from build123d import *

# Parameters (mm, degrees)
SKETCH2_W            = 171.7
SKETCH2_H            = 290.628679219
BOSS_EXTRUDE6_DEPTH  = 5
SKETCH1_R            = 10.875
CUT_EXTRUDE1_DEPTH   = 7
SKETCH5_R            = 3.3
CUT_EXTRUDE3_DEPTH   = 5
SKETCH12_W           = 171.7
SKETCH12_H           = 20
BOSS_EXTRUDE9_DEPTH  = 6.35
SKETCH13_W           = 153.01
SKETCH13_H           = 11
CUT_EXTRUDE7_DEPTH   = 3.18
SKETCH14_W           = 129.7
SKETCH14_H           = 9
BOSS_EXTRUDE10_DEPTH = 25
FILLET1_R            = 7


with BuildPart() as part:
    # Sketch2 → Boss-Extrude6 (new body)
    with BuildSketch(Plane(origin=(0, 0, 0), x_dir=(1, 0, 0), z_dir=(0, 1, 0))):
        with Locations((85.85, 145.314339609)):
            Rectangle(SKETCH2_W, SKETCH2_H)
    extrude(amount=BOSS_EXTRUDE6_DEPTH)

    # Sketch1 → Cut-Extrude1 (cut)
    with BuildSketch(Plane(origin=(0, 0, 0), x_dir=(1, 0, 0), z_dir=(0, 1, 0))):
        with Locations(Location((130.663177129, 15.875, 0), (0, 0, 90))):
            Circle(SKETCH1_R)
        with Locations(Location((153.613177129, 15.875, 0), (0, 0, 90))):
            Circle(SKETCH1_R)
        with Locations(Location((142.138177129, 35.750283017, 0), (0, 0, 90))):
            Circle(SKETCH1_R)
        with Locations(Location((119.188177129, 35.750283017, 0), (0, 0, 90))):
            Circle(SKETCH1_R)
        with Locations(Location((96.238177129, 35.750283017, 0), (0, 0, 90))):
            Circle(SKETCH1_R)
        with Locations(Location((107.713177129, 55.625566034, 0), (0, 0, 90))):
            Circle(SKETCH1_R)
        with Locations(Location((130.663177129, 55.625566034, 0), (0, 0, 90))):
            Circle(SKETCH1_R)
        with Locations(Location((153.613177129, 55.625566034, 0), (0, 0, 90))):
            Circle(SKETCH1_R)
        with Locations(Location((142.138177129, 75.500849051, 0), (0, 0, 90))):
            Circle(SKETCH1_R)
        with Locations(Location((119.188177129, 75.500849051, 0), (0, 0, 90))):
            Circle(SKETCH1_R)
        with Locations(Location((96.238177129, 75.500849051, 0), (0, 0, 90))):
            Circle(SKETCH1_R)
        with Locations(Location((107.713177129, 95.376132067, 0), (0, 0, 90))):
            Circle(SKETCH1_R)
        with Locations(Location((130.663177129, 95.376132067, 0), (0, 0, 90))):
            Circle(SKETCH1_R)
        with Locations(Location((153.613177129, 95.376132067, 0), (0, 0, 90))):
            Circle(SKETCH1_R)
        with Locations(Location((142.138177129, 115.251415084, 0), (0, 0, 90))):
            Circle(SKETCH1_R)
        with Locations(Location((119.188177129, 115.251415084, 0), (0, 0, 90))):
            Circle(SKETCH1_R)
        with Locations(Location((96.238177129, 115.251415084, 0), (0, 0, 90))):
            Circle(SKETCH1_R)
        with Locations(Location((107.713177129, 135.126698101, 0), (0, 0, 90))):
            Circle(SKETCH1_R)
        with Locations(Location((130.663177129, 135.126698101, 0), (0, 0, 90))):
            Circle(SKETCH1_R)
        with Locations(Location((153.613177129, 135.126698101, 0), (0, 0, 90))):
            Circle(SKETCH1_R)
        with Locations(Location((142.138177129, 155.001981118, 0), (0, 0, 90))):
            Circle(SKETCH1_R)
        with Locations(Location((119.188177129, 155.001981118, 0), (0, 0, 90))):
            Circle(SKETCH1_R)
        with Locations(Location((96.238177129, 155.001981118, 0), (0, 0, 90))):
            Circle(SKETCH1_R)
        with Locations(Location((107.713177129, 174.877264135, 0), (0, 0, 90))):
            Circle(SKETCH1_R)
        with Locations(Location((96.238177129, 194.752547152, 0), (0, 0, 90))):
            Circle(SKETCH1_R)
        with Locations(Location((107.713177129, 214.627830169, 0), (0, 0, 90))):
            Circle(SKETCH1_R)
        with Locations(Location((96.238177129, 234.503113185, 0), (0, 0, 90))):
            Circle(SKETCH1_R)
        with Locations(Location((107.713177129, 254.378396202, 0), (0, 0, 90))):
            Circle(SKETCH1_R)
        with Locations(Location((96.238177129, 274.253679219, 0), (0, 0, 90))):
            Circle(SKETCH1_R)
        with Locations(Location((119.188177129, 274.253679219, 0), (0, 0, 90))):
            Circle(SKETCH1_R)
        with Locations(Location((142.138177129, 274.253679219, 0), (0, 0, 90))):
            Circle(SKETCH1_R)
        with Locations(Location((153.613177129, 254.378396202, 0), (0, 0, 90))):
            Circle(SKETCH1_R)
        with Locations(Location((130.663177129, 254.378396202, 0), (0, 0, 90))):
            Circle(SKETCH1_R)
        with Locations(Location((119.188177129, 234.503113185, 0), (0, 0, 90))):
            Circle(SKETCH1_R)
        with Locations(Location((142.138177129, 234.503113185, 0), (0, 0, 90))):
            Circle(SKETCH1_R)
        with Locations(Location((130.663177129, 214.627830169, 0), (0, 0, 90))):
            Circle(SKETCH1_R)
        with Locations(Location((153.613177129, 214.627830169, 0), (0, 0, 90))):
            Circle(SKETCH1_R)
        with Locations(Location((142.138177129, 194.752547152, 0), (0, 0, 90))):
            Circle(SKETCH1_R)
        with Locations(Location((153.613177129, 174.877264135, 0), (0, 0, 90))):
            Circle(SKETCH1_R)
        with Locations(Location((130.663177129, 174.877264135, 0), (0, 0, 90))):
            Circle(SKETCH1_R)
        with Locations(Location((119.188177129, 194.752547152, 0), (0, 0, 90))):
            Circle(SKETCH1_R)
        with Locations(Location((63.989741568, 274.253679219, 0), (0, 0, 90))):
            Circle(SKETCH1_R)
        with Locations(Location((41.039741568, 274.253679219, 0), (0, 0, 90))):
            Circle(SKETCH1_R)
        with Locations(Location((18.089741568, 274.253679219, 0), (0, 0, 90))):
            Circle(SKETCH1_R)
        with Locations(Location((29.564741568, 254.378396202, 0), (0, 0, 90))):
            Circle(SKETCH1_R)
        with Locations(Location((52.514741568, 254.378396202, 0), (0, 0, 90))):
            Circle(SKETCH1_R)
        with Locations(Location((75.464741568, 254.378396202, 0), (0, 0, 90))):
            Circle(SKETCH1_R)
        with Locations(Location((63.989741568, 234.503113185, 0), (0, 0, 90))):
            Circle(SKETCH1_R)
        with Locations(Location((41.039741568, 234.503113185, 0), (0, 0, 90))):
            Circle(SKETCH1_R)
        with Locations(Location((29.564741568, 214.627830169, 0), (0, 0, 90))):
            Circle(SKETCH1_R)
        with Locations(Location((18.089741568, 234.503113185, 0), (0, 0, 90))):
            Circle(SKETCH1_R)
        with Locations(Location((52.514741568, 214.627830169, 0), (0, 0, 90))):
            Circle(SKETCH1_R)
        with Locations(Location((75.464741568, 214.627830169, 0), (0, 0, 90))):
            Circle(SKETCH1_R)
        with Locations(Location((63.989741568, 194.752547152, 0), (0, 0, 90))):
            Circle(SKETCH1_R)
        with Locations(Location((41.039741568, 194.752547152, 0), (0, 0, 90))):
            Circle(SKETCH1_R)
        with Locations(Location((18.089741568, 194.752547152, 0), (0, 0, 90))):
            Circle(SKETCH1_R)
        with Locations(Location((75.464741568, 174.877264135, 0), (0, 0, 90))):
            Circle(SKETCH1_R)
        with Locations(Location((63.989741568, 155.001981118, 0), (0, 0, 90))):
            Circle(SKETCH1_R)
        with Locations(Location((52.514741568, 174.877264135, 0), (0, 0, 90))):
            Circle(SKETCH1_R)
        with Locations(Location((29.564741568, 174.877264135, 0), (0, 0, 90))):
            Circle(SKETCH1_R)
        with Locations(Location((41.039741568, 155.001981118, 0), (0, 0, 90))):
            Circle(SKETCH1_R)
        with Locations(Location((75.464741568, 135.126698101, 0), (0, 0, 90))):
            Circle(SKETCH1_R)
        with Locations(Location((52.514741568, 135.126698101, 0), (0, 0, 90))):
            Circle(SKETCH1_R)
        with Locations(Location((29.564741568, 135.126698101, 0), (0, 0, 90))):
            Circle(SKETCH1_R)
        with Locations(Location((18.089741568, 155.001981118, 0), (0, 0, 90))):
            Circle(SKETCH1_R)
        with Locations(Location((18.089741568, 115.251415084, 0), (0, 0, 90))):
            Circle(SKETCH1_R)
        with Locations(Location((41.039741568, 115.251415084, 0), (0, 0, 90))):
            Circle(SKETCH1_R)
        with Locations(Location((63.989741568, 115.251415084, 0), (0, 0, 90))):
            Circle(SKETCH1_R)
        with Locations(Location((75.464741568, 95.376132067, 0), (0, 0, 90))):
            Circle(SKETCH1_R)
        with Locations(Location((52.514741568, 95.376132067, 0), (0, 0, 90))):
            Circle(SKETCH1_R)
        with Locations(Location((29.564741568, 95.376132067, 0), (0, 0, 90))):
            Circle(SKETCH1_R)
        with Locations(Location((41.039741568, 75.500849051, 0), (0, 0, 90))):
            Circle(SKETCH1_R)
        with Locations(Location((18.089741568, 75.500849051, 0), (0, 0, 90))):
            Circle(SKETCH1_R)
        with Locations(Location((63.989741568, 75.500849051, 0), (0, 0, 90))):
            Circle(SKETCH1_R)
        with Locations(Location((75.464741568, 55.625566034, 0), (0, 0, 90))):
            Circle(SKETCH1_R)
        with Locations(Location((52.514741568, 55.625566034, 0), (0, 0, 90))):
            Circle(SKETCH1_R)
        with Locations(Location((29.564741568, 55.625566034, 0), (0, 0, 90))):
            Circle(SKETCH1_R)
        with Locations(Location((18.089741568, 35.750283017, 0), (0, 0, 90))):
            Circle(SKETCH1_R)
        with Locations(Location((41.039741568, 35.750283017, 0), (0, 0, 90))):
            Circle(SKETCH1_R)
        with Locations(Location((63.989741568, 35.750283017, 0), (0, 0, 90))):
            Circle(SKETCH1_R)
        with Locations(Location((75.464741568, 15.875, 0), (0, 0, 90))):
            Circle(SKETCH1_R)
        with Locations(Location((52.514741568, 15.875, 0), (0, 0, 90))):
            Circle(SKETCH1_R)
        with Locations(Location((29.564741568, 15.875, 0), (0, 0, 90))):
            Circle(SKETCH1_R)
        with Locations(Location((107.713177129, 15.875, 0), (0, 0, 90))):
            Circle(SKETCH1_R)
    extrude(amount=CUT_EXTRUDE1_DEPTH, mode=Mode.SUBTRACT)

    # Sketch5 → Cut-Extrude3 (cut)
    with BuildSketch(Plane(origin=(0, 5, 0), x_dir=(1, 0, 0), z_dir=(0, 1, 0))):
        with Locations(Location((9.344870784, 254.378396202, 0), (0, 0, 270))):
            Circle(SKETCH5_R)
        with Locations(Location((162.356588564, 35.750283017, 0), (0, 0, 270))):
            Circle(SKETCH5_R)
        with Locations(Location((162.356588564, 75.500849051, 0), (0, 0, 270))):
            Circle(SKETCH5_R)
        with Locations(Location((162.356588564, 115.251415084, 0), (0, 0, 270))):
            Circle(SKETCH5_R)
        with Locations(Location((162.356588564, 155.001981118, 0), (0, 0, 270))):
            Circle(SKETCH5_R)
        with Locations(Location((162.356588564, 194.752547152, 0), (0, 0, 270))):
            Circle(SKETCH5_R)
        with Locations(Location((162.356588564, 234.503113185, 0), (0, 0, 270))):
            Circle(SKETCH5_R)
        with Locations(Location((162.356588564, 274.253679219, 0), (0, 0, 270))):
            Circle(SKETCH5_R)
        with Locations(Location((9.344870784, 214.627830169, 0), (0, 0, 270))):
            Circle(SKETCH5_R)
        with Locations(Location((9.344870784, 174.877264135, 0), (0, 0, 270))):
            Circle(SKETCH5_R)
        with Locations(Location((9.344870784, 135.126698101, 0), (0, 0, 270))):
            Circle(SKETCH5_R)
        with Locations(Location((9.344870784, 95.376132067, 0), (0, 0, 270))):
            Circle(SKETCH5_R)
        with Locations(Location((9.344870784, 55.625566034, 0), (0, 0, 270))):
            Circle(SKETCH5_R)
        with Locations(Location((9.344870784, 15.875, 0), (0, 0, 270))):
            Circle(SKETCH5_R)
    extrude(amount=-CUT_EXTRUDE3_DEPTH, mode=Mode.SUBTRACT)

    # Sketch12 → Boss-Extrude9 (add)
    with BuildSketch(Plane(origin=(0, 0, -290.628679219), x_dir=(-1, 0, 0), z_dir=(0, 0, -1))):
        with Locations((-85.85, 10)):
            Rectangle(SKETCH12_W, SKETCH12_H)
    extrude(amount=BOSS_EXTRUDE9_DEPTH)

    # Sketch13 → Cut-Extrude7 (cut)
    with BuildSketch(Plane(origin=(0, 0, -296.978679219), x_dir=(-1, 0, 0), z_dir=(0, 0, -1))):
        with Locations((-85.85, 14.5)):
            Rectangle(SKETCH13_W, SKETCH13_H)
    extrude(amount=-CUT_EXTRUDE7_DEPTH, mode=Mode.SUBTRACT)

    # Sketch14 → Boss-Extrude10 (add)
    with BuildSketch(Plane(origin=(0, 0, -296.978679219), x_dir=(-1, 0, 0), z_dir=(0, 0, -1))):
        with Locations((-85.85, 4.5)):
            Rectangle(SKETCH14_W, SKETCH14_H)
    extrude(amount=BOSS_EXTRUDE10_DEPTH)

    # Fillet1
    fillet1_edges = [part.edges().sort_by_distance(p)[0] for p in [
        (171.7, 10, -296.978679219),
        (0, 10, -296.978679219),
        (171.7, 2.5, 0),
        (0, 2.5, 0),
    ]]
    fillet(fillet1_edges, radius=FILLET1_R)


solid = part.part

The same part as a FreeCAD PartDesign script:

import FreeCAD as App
import Part
import Sketcher


def edges_at(feature, points):
    """Names of the edges that pass closest to the given points."""
    edges = feature.Shape.Edges
    near = lambda p: min(range(len(edges)), key=lambda i: edges[i].distToShape(Part.Vertex(*p))[0])
    return sorted({f"Edge{near(p) + 1}" for p in points})

doc = App.newDocument("Part")
body = doc.addObject("PartDesign::Body", "Body")

# Sketch on XZ plane
sketch1 = body.newObject("Sketcher::SketchObject", "Sketch")
sketch1.AttachmentSupport = (doc.getObject("XZ_Plane"), [""])
sketch1.MapMode = "FlatFace"
sketch1.addGeometry([
    Part.LineSegment(App.Vector(0, -290.628679, 0), App.Vector(0, 0, 0)),
    Part.LineSegment(App.Vector(0, 0, 0), App.Vector(171.7, 0, 0)),
    Part.LineSegment(App.Vector(171.7, 0, 0), App.Vector(171.7, -290.628679, 0)),
    Part.LineSegment(App.Vector(171.7, -290.628679, 0), App.Vector(0, -290.628679, 0)),
], False)
sketch1.addConstraint([
    Sketcher.Constraint("Coincident", 0, 2, 1, 1),
    Sketcher.Constraint("Coincident", 1, 2, 2, 1),
    Sketcher.Constraint("Coincident", 2, 2, 3, 1),
    Sketcher.Constraint("Coincident", 3, 2, 0, 1),
    Sketcher.Constraint("Vertical", 0),
    Sketcher.Constraint("Horizontal", 1),
    Sketcher.Constraint("Vertical", 2),
    Sketcher.Constraint("Horizontal", 3),
    Sketcher.Constraint("Coincident", 0, 2, -1, 1),
    Sketcher.Constraint("DistanceX", 1, 1, 1, 2, 171.7),
    Sketcher.Constraint("DistanceY", 0, 1, 0, 2, 290.628679),
])
pad1 = body.newObject("PartDesign::Pad", "Pad")
pad1.Profile = sketch1
pad1.Length = 5
pad1.Reversed = True

# Sketch on XZ plane
sketch2 = body.newObject("Sketcher::SketchObject", "Sketch001")
sketch2.AttachmentSupport = (doc.getObject("XZ_Plane"), [""])
sketch2.MapMode = "FlatFace"
sketch2.addGeometry([
    Part.Circle(App.Vector(130.663177, -15.875, 0), App.Vector(0, 0, 1), 10.875),  # 0
    Part.Circle(App.Vector(153.613177, -15.875, 0), App.Vector(0, 0, 1), 10.875),  # 1
    Part.Circle(App.Vector(142.138177, -35.750283, 0), App.Vector(0, 0, 1), 10.875),  # 2
    Part.Circle(App.Vector(119.188177, -35.750283, 0), App.Vector(0, 0, 1), 10.875),  # 3
    Part.Circle(App.Vector(96.238177, -35.750283, 0), App.Vector(0, 0, 1), 10.875),  # 4
    Part.Circle(App.Vector(107.713177, -55.625566, 0), App.Vector(0, 0, 1), 10.875),  # 5
    Part.Circle(App.Vector(130.663177, -55.625566, 0), App.Vector(0, 0, 1), 10.875),  # 6
    Part.Circle(App.Vector(153.613177, -55.625566, 0), App.Vector(0, 0, 1), 10.875),  # 7
    Part.Circle(App.Vector(142.138177, -75.500849, 0), App.Vector(0, 0, 1), 10.875),  # 8
    Part.Circle(App.Vector(119.188177, -75.500849, 0), App.Vector(0, 0, 1), 10.875),  # 9
    Part.Circle(App.Vector(96.238177, -75.500849, 0), App.Vector(0, 0, 1), 10.875),  # 10
    Part.Circle(App.Vector(107.713177, -95.376132, 0), App.Vector(0, 0, 1), 10.875),  # 11
    Part.Circle(App.Vector(130.663177, -95.376132, 0), App.Vector(0, 0, 1), 10.875),  # 12
    Part.Circle(App.Vector(153.613177, -95.376132, 0), App.Vector(0, 0, 1), 10.875),  # 13
    Part.Circle(App.Vector(142.138177, -115.251415, 0), App.Vector(0, 0, 1), 10.875),  # 14
    Part.Circle(App.Vector(119.188177, -115.251415, 0), App.Vector(0, 0, 1), 10.875),  # 15
    Part.Circle(App.Vector(96.238177, -115.251415, 0), App.Vector(0, 0, 1), 10.875),  # 16
    Part.Circle(App.Vector(107.713177, -135.126698, 0), App.Vector(0, 0, 1), 10.875),  # 17
    Part.Circle(App.Vector(130.663177, -135.126698, 0), App.Vector(0, 0, 1), 10.875),  # 18
    Part.Circle(App.Vector(153.613177, -135.126698, 0), App.Vector(0, 0, 1), 10.875),  # 19
    Part.Circle(App.Vector(142.138177, -155.001981, 0), App.Vector(0, 0, 1), 10.875),  # 20
    Part.Circle(App.Vector(119.188177, -155.001981, 0), App.Vector(0, 0, 1), 10.875),  # 21
    Part.Circle(App.Vector(96.238177, -155.001981, 0), App.Vector(0, 0, 1), 10.875),  # 22
    Part.Circle(App.Vector(107.713177, -174.877264, 0), App.Vector(0, 0, 1), 10.875),  # 23
    Part.Circle(App.Vector(96.238177, -194.752547, 0), App.Vector(0, 0, 1), 10.875),  # 24
    Part.Circle(App.Vector(107.713177, -214.62783, 0), App.Vector(0, 0, 1), 10.875),  # 25
    Part.Circle(App.Vector(96.238177, -234.503113, 0), App.Vector(0, 0, 1), 10.875),  # 26
    Part.Circle(App.Vector(107.713177, -254.378396, 0), App.Vector(0, 0, 1), 10.875),  # 27
    Part.Circle(App.Vector(96.238177, -274.253679, 0), App.Vector(0, 0, 1), 10.875),  # 28
    Part.Circle(App.Vector(119.188177, -274.253679, 0), App.Vector(0, 0, 1), 10.875),  # 29
    Part.Circle(App.Vector(142.138177, -274.253679, 0), App.Vector(0, 0, 1), 10.875),  # 30
    Part.Circle(App.Vector(153.613177, -254.378396, 0), App.Vector(0, 0, 1), 10.875),  # 31
    Part.Circle(App.Vector(130.663177, -254.378396, 0), App.Vector(0, 0, 1), 10.875),  # 32
    Part.Circle(App.Vector(119.188177, -234.503113, 0), App.Vector(0, 0, 1), 10.875),  # 33
    Part.Circle(App.Vector(142.138177, -234.503113, 0), App.Vector(0, 0, 1), 10.875),  # 34
    Part.Circle(App.Vector(130.663177, -214.62783, 0), App.Vector(0, 0, 1), 10.875),  # 35
    Part.Circle(App.Vector(153.613177, -214.62783, 0), App.Vector(0, 0, 1), 10.875),  # 36
    Part.Circle(App.Vector(142.138177, -194.752547, 0), App.Vector(0, 0, 1), 10.875),  # 37
    Part.Circle(App.Vector(153.613177, -174.877264, 0), App.Vector(0, 0, 1), 10.875),  # 38
    Part.Circle(App.Vector(130.663177, -174.877264, 0), App.Vector(0, 0, 1), 10.875),  # 39
    Part.Circle(App.Vector(119.188177, -194.752547, 0), App.Vector(0, 0, 1), 10.875),  # 40
    Part.Circle(App.Vector(63.989742, -274.253679, 0), App.Vector(0, 0, 1), 10.875),  # 41
    Part.Circle(App.Vector(41.039742, -274.253679, 0), App.Vector(0, 0, 1), 10.875),  # 42
    Part.Circle(App.Vector(18.089742, -274.253679, 0), App.Vector(0, 0, 1), 10.875),  # 43
    Part.Circle(App.Vector(29.564742, -254.378396, 0), App.Vector(0, 0, 1), 10.875),  # 44
    Part.Circle(App.Vector(52.514742, -254.378396, 0), App.Vector(0, 0, 1), 10.875),  # 45
    Part.Circle(App.Vector(75.464742, -254.378396, 0), App.Vector(0, 0, 1), 10.875),  # 46
    Part.Circle(App.Vector(63.989742, -234.503113, 0), App.Vector(0, 0, 1), 10.875),  # 47
    Part.Circle(App.Vector(41.039742, -234.503113, 0), App.Vector(0, 0, 1), 10.875),  # 48
    Part.Circle(App.Vector(29.564742, -214.62783, 0), App.Vector(0, 0, 1), 10.875),  # 49
    Part.Circle(App.Vector(18.089742, -234.503113, 0), App.Vector(0, 0, 1), 10.875),  # 50
    Part.Circle(App.Vector(52.514742, -214.62783, 0), App.Vector(0, 0, 1), 10.875),  # 51
    Part.Circle(App.Vector(75.464742, -214.62783, 0), App.Vector(0, 0, 1), 10.875),  # 52
    Part.Circle(App.Vector(63.989742, -194.752547, 0), App.Vector(0, 0, 1), 10.875),  # 53
    Part.Circle(App.Vector(41.039742, -194.752547, 0), App.Vector(0, 0, 1), 10.875),  # 54
    Part.Circle(App.Vector(18.089742, -194.752547, 0), App.Vector(0, 0, 1), 10.875),  # 55
    Part.Circle(App.Vector(75.464742, -174.877264, 0), App.Vector(0, 0, 1), 10.875),  # 56
    Part.Circle(App.Vector(63.989742, -155.001981, 0), App.Vector(0, 0, 1), 10.875),  # 57
    Part.Circle(App.Vector(52.514742, -174.877264, 0), App.Vector(0, 0, 1), 10.875),  # 58
    Part.Circle(App.Vector(29.564742, -174.877264, 0), App.Vector(0, 0, 1), 10.875),  # 59
    Part.Circle(App.Vector(41.039742, -155.001981, 0), App.Vector(0, 0, 1), 10.875),  # 60
    Part.Circle(App.Vector(75.464742, -135.126698, 0), App.Vector(0, 0, 1), 10.875),  # 61
    Part.Circle(App.Vector(52.514742, -135.126698, 0), App.Vector(0, 0, 1), 10.875),  # 62
    Part.Circle(App.Vector(29.564742, -135.126698, 0), App.Vector(0, 0, 1), 10.875),  # 63
    Part.Circle(App.Vector(18.089742, -155.001981, 0), App.Vector(0, 0, 1), 10.875),  # 64
    Part.Circle(App.Vector(18.089742, -115.251415, 0), App.Vector(0, 0, 1), 10.875),  # 65
    Part.Circle(App.Vector(41.039742, -115.251415, 0), App.Vector(0, 0, 1), 10.875),  # 66
    Part.Circle(App.Vector(63.989742, -115.251415, 0), App.Vector(0, 0, 1), 10.875),  # 67
    Part.Circle(App.Vector(75.464742, -95.376132, 0), App.Vector(0, 0, 1), 10.875),  # 68
    Part.Circle(App.Vector(52.514742, -95.376132, 0), App.Vector(0, 0, 1), 10.875),  # 69
    Part.Circle(App.Vector(29.564742, -95.376132, 0), App.Vector(0, 0, 1), 10.875),  # 70
    Part.Circle(App.Vector(41.039742, -75.500849, 0), App.Vector(0, 0, 1), 10.875),  # 71
    Part.Circle(App.Vector(18.089742, -75.500849, 0), App.Vector(0, 0, 1), 10.875),  # 72
    Part.Circle(App.Vector(63.989742, -75.500849, 0), App.Vector(0, 0, 1), 10.875),  # 73
    Part.Circle(App.Vector(75.464742, -55.625566, 0), App.Vector(0, 0, 1), 10.875),  # 74
    Part.Circle(App.Vector(52.514742, -55.625566, 0), App.Vector(0, 0, 1), 10.875),  # 75
    Part.Circle(App.Vector(29.564742, -55.625566, 0), App.Vector(0, 0, 1), 10.875),  # 76
    Part.Circle(App.Vector(18.089742, -35.750283, 0), App.Vector(0, 0, 1), 10.875),  # 77
    Part.Circle(App.Vector(41.039742, -35.750283, 0), App.Vector(0, 0, 1), 10.875),  # 78
    Part.Circle(App.Vector(63.989742, -35.750283, 0), App.Vector(0, 0, 1), 10.875),  # 79
    Part.Circle(App.Vector(75.464742, -15.875, 0), App.Vector(0, 0, 1), 10.875),  # 80
    Part.Circle(App.Vector(52.514742, -15.875, 0), App.Vector(0, 0, 1), 10.875),  # 81
    Part.Circle(App.Vector(29.564742, -15.875, 0), App.Vector(0, 0, 1), 10.875),  # 82
    Part.Circle(App.Vector(107.713177, -15.875, 0), App.Vector(0, 0, 1), 10.875),  # 83
], False)
sketch2.addConstraint([
    Sketcher.Constraint("Equal", 0, 1),
    Sketcher.Constraint("Equal", 1, 2),
    Sketcher.Constraint("Equal", 2, 3),
    Sketcher.Constraint("Equal", 3, 4),
    Sketcher.Constraint("Equal", 4, 5),
    Sketcher.Constraint("Equal", 5, 6),
    Sketcher.Constraint("Equal", 6, 7),
    Sketcher.Constraint("Equal", 7, 8),
    Sketcher.Constraint("Equal", 8, 9),
    Sketcher.Constraint("Equal", 9, 10),
    Sketcher.Constraint("Equal", 10, 11),
    Sketcher.Constraint("Equal", 11, 12),
    Sketcher.Constraint("Equal", 12, 13),
    Sketcher.Constraint("Equal", 13, 14),
    Sketcher.Constraint("Equal", 14, 15),
    Sketcher.Constraint("Equal", 15, 16),
    Sketcher.Constraint("Equal", 16, 17),
    Sketcher.Constraint("Equal", 17, 18),
    Sketcher.Constraint("Equal", 18, 19),
    Sketcher.Constraint("Equal", 19, 20),
    Sketcher.Constraint("Equal", 20, 21),
    Sketcher.Constraint("Equal", 21, 22),
    Sketcher.Constraint("Equal", 22, 23),
    Sketcher.Constraint("Equal", 23, 24),
    Sketcher.Constraint("Equal", 24, 25),
    Sketcher.Constraint("Equal", 25, 26),
    Sketcher.Constraint("Equal", 26, 27),
    Sketcher.Constraint("Equal", 27, 28),
    Sketcher.Constraint("Equal", 28, 29),
    Sketcher.Constraint("Equal", 29, 30),
    Sketcher.Constraint("Equal", 30, 31),
    Sketcher.Constraint("Equal", 31, 32),
    Sketcher.Constraint("Equal", 32, 33),
    Sketcher.Constraint("Equal", 33, 34),
    Sketcher.Constraint("Equal", 34, 35),
    Sketcher.Constraint("Equal", 35, 36),
    Sketcher.Constraint("Equal", 36, 37),
    Sketcher.Constraint("Equal", 37, 38),
    Sketcher.Constraint("Equal", 38, 39),
    Sketcher.Constraint("Equal", 39, 40),
    Sketcher.Constraint("Equal", 40, 41),
    Sketcher.Constraint("Equal", 41, 42),
    Sketcher.Constraint("Equal", 42, 43),
    Sketcher.Constraint("Equal", 43, 44),
    Sketcher.Constraint("Equal", 44, 45),
    Sketcher.Constraint("Equal", 45, 46),
    Sketcher.Constraint("Equal", 46, 47),
    Sketcher.Constraint("Equal", 47, 48),
    Sketcher.Constraint("Equal", 48, 49),
    Sketcher.Constraint("Equal", 49, 50),
    Sketcher.Constraint("Equal", 50, 51),
    Sketcher.Constraint("Equal", 51, 52),
    Sketcher.Constraint("Equal", 52, 53),
    Sketcher.Constraint("Equal", 53, 54),
    Sketcher.Constraint("Equal", 54, 55),
    Sketcher.Constraint("Equal", 55, 56),
    Sketcher.Constraint("Equal", 56, 57),
    Sketcher.Constraint("Equal", 57, 58),
    Sketcher.Constraint("Equal", 58, 59),
    Sketcher.Constraint("Equal", 59, 60),
    Sketcher.Constraint("Equal", 60, 61),
    Sketcher.Constraint("Equal", 61, 62),
    Sketcher.Constraint("Equal", 62, 63),
    Sketcher.Constraint("Equal", 63, 64),
    Sketcher.Constraint("Equal", 64, 65),
    Sketcher.Constraint("Equal", 65, 66),
    Sketcher.Constraint("Equal", 66, 67),
    Sketcher.Constraint("Equal", 67, 68),
    Sketcher.Constraint("Equal", 68, 69),
    Sketcher.Constraint("Equal", 69, 70),
    Sketcher.Constraint("Equal", 70, 71),
    Sketcher.Constraint("Equal", 71, 72),
    Sketcher.Constraint("Equal", 72, 73),
    Sketcher.Constraint("Equal", 73, 74),
    Sketcher.Constraint("Equal", 74, 75),
    Sketcher.Constraint("Equal", 75, 76),
    Sketcher.Constraint("Equal", 76, 77),
    Sketcher.Constraint("Equal", 77, 78),
    Sketcher.Constraint("Equal", 78, 79),
    Sketcher.Constraint("Equal", 79, 80),
    Sketcher.Constraint("Equal", 80, 81),
    Sketcher.Constraint("Equal", 81, 82),
    Sketcher.Constraint("Equal", 82, 83),
    Sketcher.Constraint("Horizontal", 0, 3, 1, 3),
    Sketcher.Constraint("Horizontal", 2, 3, 3, 3),
    Sketcher.Constraint("Horizontal", 3, 3, 4, 3),
    Sketcher.Constraint("Horizontal", 5, 3, 6, 3),
    Sketcher.Constraint("Horizontal", 6, 3, 7, 3),
    Sketcher.Constraint("Horizontal", 8, 3, 9, 3),
    Sketcher.Constraint("Horizontal", 9, 3, 10, 3),
    Sketcher.Constraint("Horizontal", 11, 3, 12, 3),
    Sketcher.Constraint("Horizontal", 12, 3, 13, 3),
    Sketcher.Constraint("Horizontal", 14, 3, 15, 3),
    Sketcher.Constraint("Horizontal", 15, 3, 16, 3),
    Sketcher.Constraint("Horizontal", 17, 3, 18, 3),
    Sketcher.Constraint("Horizontal", 18, 3, 19, 3),
    Sketcher.Constraint("Horizontal", 20, 3, 21, 3),
    Sketcher.Constraint("Horizontal", 21, 3, 22, 3),
    Sketcher.Constraint("Horizontal", 28, 3, 29, 3),
    Sketcher.Constraint("Horizontal", 29, 3, 30, 3),
    Sketcher.Constraint("Horizontal", 27, 3, 31, 3),
    Sketcher.Constraint("Horizontal", 31, 3, 32, 3),
    Sketcher.Constraint("Horizontal", 26, 3, 33, 3),
    Sketcher.Constraint("Horizontal", 33, 3, 34, 3),
    Sketcher.Constraint("Horizontal", 25, 3, 35, 3),
    Sketcher.Constraint("Horizontal", 35, 3, 36, 3),
    Sketcher.Constraint("Horizontal", 24, 3, 37, 3),
    Sketcher.Constraint("Horizontal", 23, 3, 38, 3),
    Sketcher.Constraint("Horizontal", 38, 3, 39, 3),
    Sketcher.Constraint("Horizontal", 37, 3, 40, 3),
    Sketcher.Constraint("Horizontal", 30, 3, 41, 3),
    Sketcher.Constraint("Horizontal", 41, 3, 42, 3),
    Sketcher.Constraint("Horizontal", 42, 3, 43, 3),
    Sketcher.Constraint("Horizontal", 32, 3, 44, 3),
    Sketcher.Constraint("Horizontal", 44, 3, 45, 3),
    Sketcher.Constraint("Horizontal", 45, 3, 46, 3),
    Sketcher.Constraint("Horizontal", 34, 3, 47, 3),
    Sketcher.Constraint("Horizontal", 47, 3, 48, 3),
    Sketcher.Constraint("Horizontal", 36, 3, 49, 3),
    Sketcher.Constraint("Horizontal", 48, 3, 50, 3),
    Sketcher.Constraint("Horizontal", 49, 3, 51, 3),
    Sketcher.Constraint("Horizontal", 51, 3, 52, 3),
    Sketcher.Constraint("Horizontal", 40, 3, 53, 3),
    Sketcher.Constraint("Horizontal", 53, 3, 54, 3),
    Sketcher.Constraint("Horizontal", 54, 3, 55, 3),
    Sketcher.Constraint("Horizontal", 39, 3, 56, 3),
    Sketcher.Constraint("Horizontal", 22, 3, 57, 3),
    Sketcher.Constraint("Horizontal", 56, 3, 58, 3),
    Sketcher.Constraint("Horizontal", 58, 3, 59, 3),
    Sketcher.Constraint("Horizontal", 57, 3, 60, 3),
    Sketcher.Constraint("Horizontal", 19, 3, 61, 3),
    Sketcher.Constraint("Horizontal", 61, 3, 62, 3),
    Sketcher.Constraint("Horizontal", 62, 3, 63, 3),
    Sketcher.Constraint("Horizontal", 60, 3, 64, 3),
    Sketcher.Constraint("Horizontal", 16, 3, 65, 3),
    Sketcher.Constraint("Horizontal", 65, 3, 66, 3),
    Sketcher.Constraint("Horizontal", 66, 3, 67, 3),
    Sketcher.Constraint("Horizontal", 13, 3, 68, 3),
    Sketcher.Constraint("Horizontal", 68, 3, 69, 3),
    Sketcher.Constraint("Horizontal", 69, 3, 70, 3),
    Sketcher.Constraint("Horizontal", 10, 3, 71, 3),
    Sketcher.Constraint("Horizontal", 71, 3, 72, 3),
    Sketcher.Constraint("Horizontal", 72, 3, 73, 3),
    Sketcher.Constraint("Horizontal", 7, 3, 74, 3),
    Sketcher.Constraint("Horizontal", 74, 3, 75, 3),
    Sketcher.Constraint("Horizontal", 75, 3, 76, 3),
    Sketcher.Constraint("Horizontal", 4, 3, 77, 3),
    Sketcher.Constraint("Horizontal", 77, 3, 78, 3),
    Sketcher.Constraint("Horizontal", 78, 3, 79, 3),
    Sketcher.Constraint("Horizontal", 1, 3, 80, 3),
    Sketcher.Constraint("Horizontal", 80, 3, 81, 3),
    Sketcher.Constraint("Horizontal", 81, 3, 82, 3),
    Sketcher.Constraint("Horizontal", 82, 3, 83, 3),
    Sketcher.Constraint("Vertical", 0, 3, 6, 3),
    Sketcher.Constraint("Vertical", 1, 3, 7, 3),
    Sketcher.Constraint("Vertical", 2, 3, 8, 3),
    Sketcher.Constraint("Vertical", 3, 3, 9, 3),
    Sketcher.Constraint("Vertical", 4, 3, 10, 3),
    Sketcher.Constraint("Vertical", 5, 3, 11, 3),
    Sketcher.Constraint("Vertical", 6, 3, 12, 3),
    Sketcher.Constraint("Vertical", 7, 3, 13, 3),
    Sketcher.Constraint("Vertical", 8, 3, 14, 3),
    Sketcher.Constraint("Vertical", 9, 3, 15, 3),
    Sketcher.Constraint("Vertical", 10, 3, 16, 3),
    Sketcher.Constraint("Vertical", 11, 3, 17, 3),
    Sketcher.Constraint("Vertical", 12, 3, 18, 3),
    Sketcher.Constraint("Vertical", 13, 3, 19, 3),
    Sketcher.Constraint("Vertical", 14, 3, 20, 3),
    Sketcher.Constraint("Vertical", 15, 3, 21, 3),
    Sketcher.Constraint("Vertical", 16, 3, 22, 3),
    Sketcher.Constraint("Vertical", 17, 3, 23, 3),
    Sketcher.Constraint("Vertical", 22, 3, 24, 3),
    Sketcher.Constraint("Vertical", 23, 3, 25, 3),
    Sketcher.Constraint("Vertical", 24, 3, 26, 3),
    Sketcher.Constraint("Vertical", 25, 3, 27, 3),
    Sketcher.Constraint("Vertical", 26, 3, 28, 3),
    Sketcher.Constraint("Vertical", 21, 3, 29, 3),
    Sketcher.Constraint("Vertical", 20, 3, 30, 3),
    Sketcher.Constraint("Vertical", 19, 3, 31, 3),
    Sketcher.Constraint("Vertical", 18, 3, 32, 3),
    Sketcher.Constraint("Vertical", 29, 3, 33, 3),
    Sketcher.Constraint("Vertical", 30, 3, 34, 3),
    Sketcher.Constraint("Vertical", 32, 3, 35, 3),
    Sketcher.Constraint("Vertical", 31, 3, 36, 3),
    Sketcher.Constraint("Vertical", 34, 3, 37, 3),
    Sketcher.Constraint("Vertical", 36, 3, 38, 3),
    Sketcher.Constraint("Vertical", 35, 3, 39, 3),
    Sketcher.Constraint("Vertical", 33, 3, 40, 3),
    Sketcher.Constraint("Vertical", 41, 3, 47, 3),
    Sketcher.Constraint("Vertical", 42, 3, 48, 3),
    Sketcher.Constraint("Vertical", 44, 3, 49, 3),
    Sketcher.Constraint("Vertical", 43, 3, 50, 3),
    Sketcher.Constraint("Vertical", 45, 3, 51, 3),
    Sketcher.Constraint("Vertical", 46, 3, 52, 3),
    Sketcher.Constraint("Vertical", 47, 3, 53, 3),
    Sketcher.Constraint("Vertical", 48, 3, 54, 3),
    Sketcher.Constraint("Vertical", 50, 3, 55, 3),
    Sketcher.Constraint("Vertical", 52, 3, 56, 3),
    Sketcher.Constraint("Vertical", 53, 3, 57, 3),
    Sketcher.Constraint("Vertical", 51, 3, 58, 3),
    Sketcher.Constraint("Vertical", 49, 3, 59, 3),
    Sketcher.Constraint("Vertical", 54, 3, 60, 3),
    Sketcher.Constraint("Vertical", 56, 3, 61, 3),
    Sketcher.Constraint("Vertical", 58, 3, 62, 3),
    Sketcher.Constraint("Vertical", 59, 3, 63, 3),
    Sketcher.Constraint("Vertical", 55, 3, 64, 3),
    Sketcher.Constraint("Vertical", 64, 3, 65, 3),
    Sketcher.Constraint("Vertical", 60, 3, 66, 3),
    Sketcher.Constraint("Vertical", 57, 3, 67, 3),
    Sketcher.Constraint("Vertical", 61, 3, 68, 3),
    Sketcher.Constraint("Vertical", 62, 3, 69, 3),
    Sketcher.Constraint("Vertical", 63, 3, 70, 3),
    Sketcher.Constraint("Vertical", 66, 3, 71, 3),
    Sketcher.Constraint("Vertical", 65, 3, 72, 3),
    Sketcher.Constraint("Vertical", 67, 3, 73, 3),
    Sketcher.Constraint("Vertical", 68, 3, 74, 3),
    Sketcher.Constraint("Vertical", 69, 3, 75, 3),
    Sketcher.Constraint("Vertical", 70, 3, 76, 3),
    Sketcher.Constraint("Vertical", 72, 3, 77, 3),
    Sketcher.Constraint("Vertical", 71, 3, 78, 3),
    Sketcher.Constraint("Vertical", 73, 3, 79, 3),
    Sketcher.Constraint("Vertical", 74, 3, 80, 3),
    Sketcher.Constraint("Vertical", 75, 3, 81, 3),
    Sketcher.Constraint("Vertical", 76, 3, 82, 3),
    Sketcher.Constraint("Vertical", 27, 3, 83, 3),
    Sketcher.Constraint("Diameter", 0, 21.75),
    Sketcher.Constraint("DistanceY", 0, 3, -1, 1, 15.875),
    Sketcher.Constraint("DistanceY", 17, 3, -1, 1, 135.126698),
    Sketcher.Constraint("DistanceY", 8, 3, -1, 1, 75.500849),
    Sketcher.Constraint("DistanceY", 20, 3, -1, 1, 155.001981),
    Sketcher.Constraint("DistanceY", 25, 3, -1, 1, 214.62783),
    Sketcher.Constraint("DistanceY", 28, 3, -1, 1, 274.253679),
    Sketcher.Constraint("DistanceX", -1, 1, 41, 3, 63.989742),
    Sketcher.Constraint("DistanceX", -1, 1, 42, 3, 41.039742),
    Sketcher.Constraint("DistanceX", -1, 1, 43, 3, 18.089742),
    Sketcher.Constraint("DistanceX", -1, 1, 44, 3, 29.564742),
    Sketcher.Constraint("DistanceX", -1, 1, 45, 3, 52.514742),
    Sketcher.Constraint("DistanceX", -1, 1, 46, 3, 75.464742),
    Sketcher.Constraint("DistanceX", -1, 1, 0, 3, 130.663177),
    Sketcher.Constraint("DistanceX", -1, 1, 1, 3, 153.613177),
    Sketcher.Constraint("DistanceX", -1, 1, 2, 3, 142.138177),
    Sketcher.Constraint("DistanceY", 2, 3, -1, 1, 35.750283),
    Sketcher.Constraint("DistanceX", -1, 1, 3, 3, 119.188177),
    Sketcher.Constraint("DistanceX", -1, 1, 4, 3, 96.238177),
    Sketcher.Constraint("DistanceX", -1, 1, 5, 3, 107.713177),
    Sketcher.Constraint("DistanceY", 5, 3, -1, 1, 55.625566),
    Sketcher.Constraint("DistanceY", 11, 3, -1, 1, 95.376132),
    Sketcher.Constraint("DistanceY", 14, 3, -1, 1, 115.251415),
    Sketcher.Constraint("DistanceY", 23, 3, -1, 1, 174.877264),
    Sketcher.Constraint("DistanceY", 24, 3, -1, 1, 194.752547),
    Sketcher.Constraint("DistanceY", 26, 3, -1, 1, 234.503113),
    Sketcher.Constraint("DistanceY", 27, 3, -1, 1, 254.378396),
])
pocket1 = body.newObject("PartDesign::Pocket", "Pocket")
pocket1.Profile = sketch2
pocket1.Length = 7

# Sketch on XZ plane
sketch3 = body.newObject("Sketcher::SketchObject", "Sketch002")
sketch3.AttachmentSupport = (doc.getObject("XZ_Plane"), [""])
sketch3.MapMode = "FlatFace"
sketch3.AttachmentOffset = App.Placement(App.Vector(0, 0, -5), App.Rotation())
sketch3.addGeometry([
    Part.Circle(App.Vector(9.344871, -254.378396, 0), App.Vector(0, 0, 1), 3.3),  # 0
    Part.Circle(App.Vector(162.356589, -35.750283, 0), App.Vector(0, 0, 1), 3.3),  # 1
    Part.Circle(App.Vector(162.356589, -75.500849, 0), App.Vector(0, 0, 1), 3.3),  # 2
    Part.Circle(App.Vector(162.356589, -115.251415, 0), App.Vector(0, 0, 1), 3.3),  # 3
    Part.Circle(App.Vector(162.356589, -155.001981, 0), App.Vector(0, 0, 1), 3.3),  # 4
    Part.Circle(App.Vector(162.356589, -194.752547, 0), App.Vector(0, 0, 1), 3.3),  # 5
    Part.Circle(App.Vector(162.356589, -234.503113, 0), App.Vector(0, 0, 1), 3.3),  # 6
    Part.Circle(App.Vector(162.356589, -274.253679, 0), App.Vector(0, 0, 1), 3.3),  # 7
    Part.Circle(App.Vector(9.344871, -214.62783, 0), App.Vector(0, 0, 1), 3.3),  # 8
    Part.Circle(App.Vector(9.344871, -174.877264, 0), App.Vector(0, 0, 1), 3.3),  # 9
    Part.Circle(App.Vector(9.344871, -135.126698, 0), App.Vector(0, 0, 1), 3.3),  # 10
    Part.Circle(App.Vector(9.344871, -95.376132, 0), App.Vector(0, 0, 1), 3.3),  # 11
    Part.Circle(App.Vector(9.344871, -55.625566, 0), App.Vector(0, 0, 1), 3.3),  # 12
    Part.Circle(App.Vector(9.344871, -15.875, 0), App.Vector(0, 0, 1), 3.3),  # 13
], False)
sketch3.addConstraint([
    Sketcher.Constraint("Equal", 0, 1),
    Sketcher.Constraint("Equal", 1, 2),
    Sketcher.Constraint("Equal", 2, 3),
    Sketcher.Constraint("Equal", 3, 4),
    Sketcher.Constraint("Equal", 4, 5),
    Sketcher.Constraint("Equal", 5, 6),
    Sketcher.Constraint("Equal", 6, 7),
    Sketcher.Constraint("Equal", 7, 8),
    Sketcher.Constraint("Equal", 8, 9),
    Sketcher.Constraint("Equal", 9, 10),
    Sketcher.Constraint("Equal", 10, 11),
    Sketcher.Constraint("Equal", 11, 12),
    Sketcher.Constraint("Equal", 12, 13),
    Sketcher.Constraint("Vertical", 1, 3, 2, 3),
    Sketcher.Constraint("Vertical", 2, 3, 3, 3),
    Sketcher.Constraint("Vertical", 3, 3, 4, 3),
    Sketcher.Constraint("Vertical", 4, 3, 5, 3),
    Sketcher.Constraint("Vertical", 5, 3, 6, 3),
    Sketcher.Constraint("Vertical", 6, 3, 7, 3),
    Sketcher.Constraint("Vertical", 0, 3, 8, 3),
    Sketcher.Constraint("Vertical", 8, 3, 9, 3),
    Sketcher.Constraint("Vertical", 9, 3, 10, 3),
    Sketcher.Constraint("Vertical", 10, 3, 11, 3),
    Sketcher.Constraint("Vertical", 11, 3, 12, 3),
    Sketcher.Constraint("Vertical", 12, 3, 13, 3),
    Sketcher.Constraint("Diameter", 0, 6.6),
    Sketcher.Constraint("DistanceY", 13, 3, -1, 1, 15.875),
    Sketcher.Constraint("DistanceY", 10, 3, -1, 1, 135.126698),
    Sketcher.Constraint("DistanceY", 4, 3, 1, 3, 119.251698),
    Sketcher.Constraint("DistanceY", 5, 3, 2, 3, 119.251698),
    Sketcher.Constraint("DistanceY", 6, 3, 3, 3, 119.251698),
    Sketcher.Constraint("DistanceY", 7, 3, 4, 3, 119.251698),
    Sketcher.Constraint("DistanceY", 0, 3, 10, 3, 119.251698),
    Sketcher.Constraint("DistanceY", 8, 3, 11, 3, 119.251698),
    Sketcher.Constraint("DistanceY", 9, 3, 12, 3, 119.251698),
    Sketcher.Constraint("DistanceX", -1, 1, 0, 3, 9.344871),
    Sketcher.Constraint("DistanceX", -1, 1, 1, 3, 162.356589),
    Sketcher.Constraint("DistanceY", 2, 3, -1, 1, 75.500849),
    Sketcher.Constraint("DistanceY", 4, 3, -1, 1, 155.001981),
    Sketcher.Constraint("DistanceY", 8, 3, -1, 1, 214.62783),
    Sketcher.Constraint("DistanceY", 0, 3, 3, 3, 139.126981),
    Sketcher.Constraint("DistanceY", 6, 3, 9, 3, 59.625849),
])
pocket2 = body.newObject("PartDesign::Pocket", "Pocket001")
pocket2.Profile = sketch3
pocket2.Length = 5
pocket2.Reversed = True

# Sketch on XY plane
sketch4 = body.newObject("Sketcher::SketchObject", "Sketch003")
sketch4.AttachmentSupport = (doc.getObject("XY_Plane"), [""])
sketch4.MapMode = "FlatFace"
sketch4.AttachmentOffset = App.Placement(App.Vector(0, 0, -290.628679), App.Rotation())
sketch4.addGeometry([
    Part.LineSegment(App.Vector(171.7, 20, 0), App.Vector(171.7, 0, 0)),
    Part.LineSegment(App.Vector(171.7, 0, 0), App.Vector(0, 0, 0)),
    Part.LineSegment(App.Vector(0, 0, 0), App.Vector(0, 20, 0)),
    Part.LineSegment(App.Vector(0, 20, 0), App.Vector(171.7, 20, 0)),
], False)
sketch4.addConstraint([
    Sketcher.Constraint("Coincident", 0, 2, 1, 1),
    Sketcher.Constraint("Coincident", 1, 2, 2, 1),
    Sketcher.Constraint("Coincident", 2, 2, 3, 1),
    Sketcher.Constraint("Coincident", 3, 2, 0, 1),
    Sketcher.Constraint("Vertical", 0),
    Sketcher.Constraint("Horizontal", 1),
    Sketcher.Constraint("Vertical", 2),
    Sketcher.Constraint("Horizontal", 3),
    Sketcher.Constraint("Coincident", 1, 2, -1, 1),
    Sketcher.Constraint("DistanceY", 0, 2, 0, 1, 20.0),
    Sketcher.Constraint("DistanceX", 1, 2, 1, 1, 171.7),
])
pad2 = body.newObject("PartDesign::Pad", "Pad001")
pad2.Profile = sketch4
pad2.Length = 6.35
pad2.Reversed = True

# Sketch on XY plane
sketch5 = body.newObject("Sketcher::SketchObject", "Sketch004")
sketch5.AttachmentSupport = (doc.getObject("XY_Plane"), [""])
sketch5.MapMode = "FlatFace"
sketch5.AttachmentOffset = App.Placement(App.Vector(0, 0, -296.978679), App.Rotation())
sketch5.addGeometry([
    Part.LineSegment(App.Vector(162.355, 20, 0), App.Vector(162.355, 9, 0)),
    Part.LineSegment(App.Vector(162.355, 9, 0), App.Vector(9.345, 9, 0)),
    Part.LineSegment(App.Vector(9.345, 9, 0), App.Vector(9.345, 20, 0)),
    Part.LineSegment(App.Vector(9.345, 20, 0), App.Vector(162.355, 20, 0)),
], False)
sketch5.addConstraint([
    Sketcher.Constraint("Coincident", 0, 2, 1, 1),
    Sketcher.Constraint("Coincident", 1, 2, 2, 1),
    Sketcher.Constraint("Coincident", 2, 2, 3, 1),
    Sketcher.Constraint("Coincident", 3, 2, 0, 1),
    Sketcher.Constraint("Vertical", 0),
    Sketcher.Constraint("Horizontal", 1),
    Sketcher.Constraint("Vertical", 2),
    Sketcher.Constraint("Horizontal", 3),
    Sketcher.Constraint("DistanceY", 0, 2, 0, 1, 11.0),
    Sketcher.Constraint("DistanceY", -1, 1, 0, 2, 9.0),
    Sketcher.Constraint("DistanceX", 1, 2, 1, 1, 153.01),
    Sketcher.Constraint("DistanceX", -1, 1, 0, 2, 162.355),
])
pocket3 = body.newObject("PartDesign::Pocket", "Pocket002")
pocket3.Profile = sketch5
pocket3.Length = 3.18
pocket3.Reversed = True

# Sketch on XY plane
sketch6 = body.newObject("Sketcher::SketchObject", "Sketch005")
sketch6.AttachmentSupport = (doc.getObject("XY_Plane"), [""])
sketch6.MapMode = "FlatFace"
sketch6.AttachmentOffset = App.Placement(App.Vector(0, 0, -296.978679), App.Rotation())
sketch6.addGeometry([
    Part.LineSegment(App.Vector(150.7, 9, 0), App.Vector(150.7, 0, 0)),
    Part.LineSegment(App.Vector(150.7, 0, 0), App.Vector(21, 0, 0)),
    Part.LineSegment(App.Vector(21, 0, 0), App.Vector(21, 9, 0)),
    Part.LineSegment(App.Vector(21, 9, 0), App.Vector(150.7, 9, 0)),
], False)
sketch6.addConstraint([
    Sketcher.Constraint("Coincident", 0, 2, 1, 1),
    Sketcher.Constraint("Coincident", 1, 2, 2, 1),
    Sketcher.Constraint("Coincident", 2, 2, 3, 1),
    Sketcher.Constraint("Coincident", 3, 2, 0, 1),
    Sketcher.Constraint("Vertical", 0),
    Sketcher.Constraint("Horizontal", 1),
    Sketcher.Constraint("Vertical", 2),
    Sketcher.Constraint("Horizontal", 3),
    Sketcher.Constraint("PointOnObject", 0, 2, -1),
    Sketcher.Constraint("DistanceY", 0, 2, 0, 1, 9.0),
    Sketcher.Constraint("DistanceX", 1, 2, 1, 1, 129.7),
    Sketcher.Constraint("DistanceX", -1, 1, 1, 2, 21.0),
])
pad3 = body.newObject("PartDesign::Pad", "Pad002")
pad3.Profile = sketch6
pad3.Length = 25
pad3.Reversed = True
doc.recompute()

fillet = body.newObject("PartDesign::Fillet", "Fillet")
fillet.Base = (pad3, edges_at(pad3, [
    (171.7, 10, -296.979),
    (0, 10, -296.979),
    (171.7, 2.5, 0),
    (0, 2.5, 0),
]))
fillet.Radius = 7

doc.recompute()
